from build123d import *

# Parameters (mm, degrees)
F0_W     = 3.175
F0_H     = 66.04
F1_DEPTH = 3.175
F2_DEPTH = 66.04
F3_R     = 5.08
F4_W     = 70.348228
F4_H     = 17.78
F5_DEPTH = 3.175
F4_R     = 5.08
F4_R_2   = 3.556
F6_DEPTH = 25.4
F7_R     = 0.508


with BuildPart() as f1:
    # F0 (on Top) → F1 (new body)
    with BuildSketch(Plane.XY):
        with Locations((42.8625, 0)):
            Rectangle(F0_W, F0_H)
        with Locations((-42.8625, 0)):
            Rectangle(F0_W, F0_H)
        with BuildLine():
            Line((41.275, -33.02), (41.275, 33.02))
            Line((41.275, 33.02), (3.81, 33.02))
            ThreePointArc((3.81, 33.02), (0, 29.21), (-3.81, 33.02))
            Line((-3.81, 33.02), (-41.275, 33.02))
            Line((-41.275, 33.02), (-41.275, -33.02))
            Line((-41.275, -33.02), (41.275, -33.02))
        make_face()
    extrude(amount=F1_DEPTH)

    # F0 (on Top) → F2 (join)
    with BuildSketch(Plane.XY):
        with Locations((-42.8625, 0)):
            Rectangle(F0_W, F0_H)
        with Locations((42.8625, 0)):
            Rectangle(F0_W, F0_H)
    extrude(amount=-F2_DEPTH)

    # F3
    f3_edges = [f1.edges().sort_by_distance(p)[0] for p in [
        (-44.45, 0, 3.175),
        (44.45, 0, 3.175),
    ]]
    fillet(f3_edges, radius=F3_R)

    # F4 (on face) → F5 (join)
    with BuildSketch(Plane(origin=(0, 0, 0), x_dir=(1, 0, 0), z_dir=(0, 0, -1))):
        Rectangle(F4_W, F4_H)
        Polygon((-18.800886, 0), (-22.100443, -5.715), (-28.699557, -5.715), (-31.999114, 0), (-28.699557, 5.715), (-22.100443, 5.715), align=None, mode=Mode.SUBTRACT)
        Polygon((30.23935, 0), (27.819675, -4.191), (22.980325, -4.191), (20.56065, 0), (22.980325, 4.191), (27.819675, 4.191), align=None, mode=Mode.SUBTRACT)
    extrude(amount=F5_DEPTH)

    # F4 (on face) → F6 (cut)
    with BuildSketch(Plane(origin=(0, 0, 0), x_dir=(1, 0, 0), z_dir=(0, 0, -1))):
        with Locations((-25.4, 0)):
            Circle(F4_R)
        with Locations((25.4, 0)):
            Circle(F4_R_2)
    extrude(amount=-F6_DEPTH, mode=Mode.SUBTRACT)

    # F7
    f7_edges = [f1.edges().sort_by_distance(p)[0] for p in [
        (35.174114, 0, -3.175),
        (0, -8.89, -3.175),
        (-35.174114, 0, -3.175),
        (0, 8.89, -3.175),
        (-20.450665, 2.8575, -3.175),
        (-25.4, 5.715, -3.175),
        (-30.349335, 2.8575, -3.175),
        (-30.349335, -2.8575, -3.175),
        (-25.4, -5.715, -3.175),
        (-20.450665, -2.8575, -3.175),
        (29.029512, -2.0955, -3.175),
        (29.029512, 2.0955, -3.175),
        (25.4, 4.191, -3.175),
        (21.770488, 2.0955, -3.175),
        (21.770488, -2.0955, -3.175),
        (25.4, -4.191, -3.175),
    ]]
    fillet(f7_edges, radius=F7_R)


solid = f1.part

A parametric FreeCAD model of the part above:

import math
import FreeCAD as App
import Part
import Sketcher

V = App.Vector
Q = App.Units.Quantity


def edges_at(feature, points):
    """Names of the edges that pass closest to the given points."""
    edges = feature.Shape.Edges
    near = lambda p: min(range(len(edges)), key=lambda i: edges[i].distToShape(Part.Vertex(*p))[0])
    return sorted({f"Edge{near(p) + 1}" for p in points})

doc = App.newDocument("Part")
params = doc.addObject("Spreadsheet::Sheet", "Params")
for row, (alias, value) in enumerate([
    ("sketch1_radius", "0.15 in"),
    ("sketch1_width", "1.6 in"),
    ("sketch1_height", "2.6 in"),
    ("pad1_length", "0.125 in"),
    ("sketch2_height", "2.6 in"),
    ("sketch2_width", "0.125 in"),
    ("pad2_length", "2.6 in"),
    ("fillet_radius", "0.2 in"),
    ("sketch3_height", "0.7 in"),
    ("pad3_length", "0.125 in"),
    ("sketch4_diameter", "0.4 in"),
    ("sketch4_diameter2", "0.28 in"),
    ("pocket1_length", "1 in"),
    ("fillet2_radius", "0.02 in"),
], start=1):
    params.set(f"A{row}", alias)
    params.set(f"B{row}", "=" + value)
    params.setAlias(f"B{row}", alias)

body = doc.addObject("PartDesign::Body", "Body")

# Sketch on XY plane
sketch1 = doc.addObject("Sketcher::SketchObject", "Sketch")
body.addObject(sketch1)
sketch1.AttachmentSupport = (doc.XY_Plane, [""])
sketch1.MapMode = "FlatFace"
sketch1.addGeometry([
    Part.LineSegment(V(44.5, -33, 0), V(44.5, 33, 0)),  # 0
    Part.LineSegment(V(44.5, 33, 0), V(3.8, 33, 0)),  # 1
    Part.ArcOfCircle(Part.Circle(V(0, 33, 0), V(0, 0, 1), 3.8), math.radians(180), math.radians(360)),  # 2
    Part.LineSegment(V(-3.8, 33, 0), V(-44.5, 33, 0)),  # 3
    Part.LineSegment(V(-44.5, 33, 0), V(-44.5, -33, 0)),  # 4
    Part.LineSegment(V(-44.5, -33, 0), V(44.5, -33, 0)),  # 5
], False)
sketch1.addConstraint([
    Sketcher.Constraint("Coincident", 0, 2, 1, 1),
    Sketcher.Constraint("Coincident", 1, 2, 2, 2),
    Sketcher.Constraint("Coincident", 2, 1, 3, 1),
    Sketcher.Constraint("Coincident", 3, 2, 4, 1),
    Sketcher.Constraint("Coincident", 4, 2, 5, 1),
    Sketcher.Constraint("Coincident", 5, 2, 0, 1),
    Sketcher.Constraint("Vertical", 0),
    Sketcher.Constraint("Horizontal", 1),
    Sketcher.Constraint("Horizontal", 3),
    Sketcher.Constraint("Vertical", 4),
    Sketcher.Constraint("Horizontal", 5),
    Sketcher.Constraint("Symmetric", 0, 2, 4, 2, -1, 1),
    Sketcher.Constraint("Symmetric", 1, 2, 2, 1, -2),
    Sketcher.Constraint("Horizontal", 2, 3, 0, 2),
    Sketcher.Constraint("Radius", 2, Q("0.15 in")),
    Sketcher.Constraint("DistanceX", 1, 2, 1, 1, Q("1.6 in")),
    Sketcher.Constraint("DistanceY", 0, 1, 0, 2, Q("2.6 in")),
])
sketch1.setExpression("Constraints[14]", "Params.sketch1_radius")
sketch1.setExpression("Constraints[15]", "Params.sketch1_width")
sketch1.setExpression("Constraints[16]", "Params.sketch1_height")
pad1 = doc.addObject("PartDesign::Pad", "Pad")
body.addObject(pad1)
pad1.Profile = sketch1
pad1.setExpression("Length", "Params.pad1_length")

# Sketch on XY plane
sketch2 = doc.addObject("Sketcher::SketchObject", "Sketch001")
body.addObject(sketch2)
sketch2.AttachmentSupport = (doc.XY_Plane, [""])
sketch2.MapMode = "FlatFace"
sketch2.addGeometry([
    Part.LineSegment(V(-44.5, 33, 0), V(-44.5, -33, 0)),  # 0
    Part.LineSegment(V(-44.5, -33, 0), V(-41.3, -33, 0)),  # 1
    Part.LineSegment(V(-41.3, -33, 0), V(-41.3, 33, 0)),  # 2
    Part.LineSegment(V(-41.3, 33, 0), V(-44.5, 33, 0)),  # 3
    Part.LineSegment(V(41.3, 33, 0), V(41.3, -33, 0)),  # 4
    Part.LineSegment(V(41.3, -33, 0), V(44.5, -33, 0)),  # 5
    Part.LineSegment(V(44.5, -33, 0), V(44.5, 33, 0)),  # 6
    Part.LineSegment(V(44.5, 33, 0), V(41.3, 33, 0)),  # 7
], False)
sketch2.addConstraint([
    Sketcher.Constraint("Coincident", 0, 2, 1, 1),
    Sketcher.Constraint("Coincident", 1, 2, 2, 1),
    Sketcher.Constraint("Coincident", 2, 2, 3, 1),
    Sketcher.Constraint("Coincident", 3, 2, 0, 1),
    Sketcher.Constraint("Coincident", 4, 2, 5, 1),
    Sketcher.Constraint("Coincident", 5, 2, 6, 1),
    Sketcher.Constraint("Coincident", 6, 2, 7, 1),
    Sketcher.Constraint("Coincident", 7, 2, 4, 1),
    Sketcher.Constraint("Vertical", 0),
    Sketcher.Constraint("Horizontal", 1),
    Sketcher.Constraint("Vertical", 2),
    Sketcher.Constraint("Horizontal", 3),
    Sketcher.Constraint("Vertical", 4),
    Sketcher.Constraint("Horizontal", 5),
    Sketcher.Constraint("Vertical", 6),
    Sketcher.Constraint("Horizontal", 7),
    Sketcher.Constraint("Symmetric", 2, 2, 4, 2, -1, 1),
    Sketcher.Constraint("Symmetric", 0, 2, 6, 2, -1, 1),
    Sketcher.Constraint("Horizontal", 1, 2, 4, 2),
    Sketcher.Constraint("DistanceY", 0, 2, 0, 1, Q("2.6 in")),
    Sketcher.Constraint("DistanceX", 0, 2, 5, 2, Q("3.5 in")),
    Sketcher.Constraint("DistanceX", 1, 1, 1, 2, Q("0.125 in")),
])
sketch2.setExpression("Constraints[19]", "Params.sketch2_height")
sketch2.setExpression("Constraints[21]", "Params.sketch2_width")
pad2 = doc.addObject("PartDesign::Pad", "Pad001")
body.addObject(pad2)
pad2.Profile = sketch2
pad2.setExpression("Length", "Params.pad2_length")
pad2.Reversed = True
doc.recompute()

fillet = doc.addObject("PartDesign::Fillet", "Fillet")
body.addObject(fillet)
fillet.Base = (pad2, edges_at(pad2, [(-44.45, 0, 3.175), (44.45, 0, 3.175)]))
fillet.setExpression("Radius", "Params.fillet_radius")

# Sketch on XY plane
sketch3 = doc.addObject("Sketcher::SketchObject", "Sketch002")
body.addObject(sketch3)
sketch3.AttachmentSupport = (doc.XY_Plane, [""])
sketch3.MapMode = "FlatFace"
sketch3.addGeometry([
    Part.LineSegment(V(-35.2, -8.9, 0), V(-35.2, 8.9, 0)),  # 0
    Part.LineSegment(V(-35.2, 8.9, 0), V(35.2, 8.9, 0)),  # 1
    Part.LineSegment(V(35.2, 8.9, 0), V(35.2, -8.9, 0)),  # 2
    Part.LineSegment(V(35.2, -8.9, 0), V(-35.2, -8.9, 0)),  # 3
    Part.LineSegment(V(-22.1, -5.7, 0), V(-18.8, 0, 0)),  # 4
    Part.LineSegment(V(-18.8, 0, 0), V(-22.1, 5.7, 0)),  # 5
    Part.LineSegment(V(-22.1, 5.7, 0), V(-28.7, 5.7, 0)),  # 6
    Part.LineSegment(V(-28.7, 5.7, 0), V(-32, 0, 0)),  # 7
    Part.LineSegment(V(-32, 0, 0), V(-28.7, -5.7, 0)),  # 8
    Part.LineSegment(V(-28.7, -5.7, 0), V(-22.1, -5.7, 0)),  # 9
    Part.LineSegment(V(27.8, -4.2, 0), V(30.2, 0, 0)),  # 10
    Part.LineSegment(V(30.2, 0, 0), V(27.8, 4.2, 0)),  # 11
    Part.LineSegment(V(27.8, 4.2, 0), V(23, 4.2, 0)),  # 12
    Part.LineSegment(V(23, 4.2, 0), V(20.6, 0, 0)),  # 13
    Part.LineSegment(V(20.6, 0, 0), V(23, -4.2, 0)),  # 14
    Part.LineSegment(V(23, -4.2, 0), V(27.8, -4.2, 0)),  # 15
], False)
sketch3.addConstraint([
    Sketcher.Constraint("Coincident", 0, 2, 1, 1),
    Sketcher.Constraint("Coincident", 1, 2, 2, 1),
    Sketcher.Constraint("Coincident", 2, 2, 3, 1),
    Sketcher.Constraint("Coincident", 3, 2, 0, 1),
    Sketcher.Constraint("Coincident", 4, 2, 5, 1),
    Sketcher.Constraint("Coincident", 5, 2, 6, 1),
    Sketcher.Constraint("Coincident", 6, 2, 7, 1),
    Sketcher.Constraint("Coincident", 7, 2, 8, 1),
    Sketcher.Constraint("Coincident", 8, 2, 9, 1),
    Sketcher.Constraint("Coincident", 9, 2, 4, 1),
    Sketcher.Constraint("Coincident", 10, 2, 11, 1),
    Sketcher.Constraint("Coincident", 11, 2, 12, 1),
    Sketcher.Constraint("Coincident", 12, 2, 13, 1),
    Sketcher.Constraint("Coincident", 13, 2, 14, 1),
    Sketcher.Constraint("Coincident", 14, 2, 15, 1),
    Sketcher.Constraint("Coincident", 15, 2, 10, 1),
    Sketcher.Constraint("Vertical", 0),
    Sketcher.Constraint("Horizontal", 1),
    Sketcher.Constraint("Vertical", 2),
    Sketcher.Constraint("Horizontal", 3),
    Sketcher.Constraint("Horizontal", 6),
    Sketcher.Constraint("Horizontal", 9),
    Sketcher.Constraint("Horizontal", 12),
    Sketcher.Constraint("Horizontal", 15),
    Sketcher.Constraint("Symmetric", 0, 2, 2, 2, -1, 1),
    Sketcher.Constraint("Symmetric", 6, 2, 8, 2, -1),
    Sketcher.Constraint("Symmetric", 12, 2, 14, 2, -1),
    Sketcher.Constraint("PointOnObject", 4, 2, -1),
    Sketcher.Constraint("PointOnObject", 7, 2, -1),
    Sketcher.Constraint("PointOnObject", 10, 2, -1),
    Sketcher.Constraint("PointOnObject", 13, 2, -1),
    Sketcher.Constraint("Parallel", 4, 7),
    Sketcher.Constraint("Parallel", 5, 8),
    Sketcher.Constraint("Parallel", 7, 10),
    Sketcher.Constraint("Parallel", 8, 11),
    Sketcher.Constraint("Parallel", 10, 13),
    Sketcher.Constraint("DistanceY", 0, 1, 0, 2, Q("0.7 in")),
    Sketcher.Constraint("Angle", 4, Q("59.999998 deg")),
    Sketcher.Constraint("DistanceY", 8, 2, 6, 2, Q("0.45 in")),
    Sketcher.Constraint("DistanceY", 11, 2, 5, 2, Q("0.06 in")),
    Sketcher.Constraint("DistanceX", 4, 2, 1, 2, Q("2.125 in")),
    Sketcher.Constraint("DistanceX", 0, 2, 7, 2, Q("0.125 in")),
    Sketcher.Constraint("DistanceX", 1, 1, 1, 2, 70.348228),
    Sketcher.Constraint("DistanceX", 12, 2, 12, 1, 4.83935),
    Sketcher.Constraint("DistanceX", -1, 1, 10, 2, 30.23935),
])
sketch3.setExpression("Constraints[36]", "Params.sketch3_height")
pad3 = doc.addObject("PartDesign::Pad", "Pad002")
body.addObject(pad3)
pad3.Profile = sketch3
pad3.setExpression("Length", "Params.pad3_length")
pad3.Reversed = True

# Sketch on XY plane
sketch4 = doc.addObject("Sketcher::SketchObject", "Sketch003")
body.addObject(sketch4)
sketch4.AttachmentSupport = (doc.XY_Plane, [""])
sketch4.MapMode = "FlatFace"
sketch4.addGeometry([
    Part.Circle(V(-25.4, 0, 0), V(0, 0, 1), 5.1),
    Part.Circle(V(25.4, 0, 0), V(0, 0, 1), 3.6),
], False)
sketch4.addConstraint([
    Sketcher.Constraint("Symmetric", 0, 3, 1, 3, -1, 1),
    Sketcher.Constraint("PointOnObject", 0, 3, -1),
    Sketcher.Constraint("Diameter", 0, Q("0.4 in")),
    Sketcher.Constraint("Diameter", 1, Q("0.28 in")),
    Sketcher.Constraint("DistanceX", 0, 3, -1, 1, Q("1 in")),
])
sketch4.setExpression("Constraints[2]", "Params.sketch4_diameter")
sketch4.setExpression("Constraints[3]", "Params.sketch4_diameter2")
pocket1 = doc.addObject("PartDesign::Pocket", "Pocket")
body.addObject(pocket1)
pocket1.Profile = sketch4
pocket1.setExpression("Length", "Params.pocket1_length")
pocket1.Reversed = True
doc.recompute()

fillet2 = doc.addObject("PartDesign::Fillet", "Fillet001")
body.addObject(fillet2)
fillet2.Base = (pocket1, edges_at(pocket1, [
    (35.174, 0, -3.175),
    (0, -8.89, -3.175),
    (-35.174, 0, -3.175),
    (0, 8.89, -3.175),
    (-20.451, 2.857, -3.175),
    (-25.4, 5.715, -3.175),
    (-30.349, 2.857, -3.175),
    (-30.349, -2.857, -3.175),
    (-25.4, -5.715, -3.175),
    (-20.451, -2.857, -3.175),
    (29.03, -2.095, -3.175),
    (29.03, 2.095, -3.175),
    (25.4, 4.191, -3.175),
    (21.77, 2.095, -3.175),
    (21.77, -2.095, -3.175),
    (25.4, -4.191, -3.175),
]))
fillet2.setExpression("Radius", "Params.fillet2_radius")

doc.recompute()
